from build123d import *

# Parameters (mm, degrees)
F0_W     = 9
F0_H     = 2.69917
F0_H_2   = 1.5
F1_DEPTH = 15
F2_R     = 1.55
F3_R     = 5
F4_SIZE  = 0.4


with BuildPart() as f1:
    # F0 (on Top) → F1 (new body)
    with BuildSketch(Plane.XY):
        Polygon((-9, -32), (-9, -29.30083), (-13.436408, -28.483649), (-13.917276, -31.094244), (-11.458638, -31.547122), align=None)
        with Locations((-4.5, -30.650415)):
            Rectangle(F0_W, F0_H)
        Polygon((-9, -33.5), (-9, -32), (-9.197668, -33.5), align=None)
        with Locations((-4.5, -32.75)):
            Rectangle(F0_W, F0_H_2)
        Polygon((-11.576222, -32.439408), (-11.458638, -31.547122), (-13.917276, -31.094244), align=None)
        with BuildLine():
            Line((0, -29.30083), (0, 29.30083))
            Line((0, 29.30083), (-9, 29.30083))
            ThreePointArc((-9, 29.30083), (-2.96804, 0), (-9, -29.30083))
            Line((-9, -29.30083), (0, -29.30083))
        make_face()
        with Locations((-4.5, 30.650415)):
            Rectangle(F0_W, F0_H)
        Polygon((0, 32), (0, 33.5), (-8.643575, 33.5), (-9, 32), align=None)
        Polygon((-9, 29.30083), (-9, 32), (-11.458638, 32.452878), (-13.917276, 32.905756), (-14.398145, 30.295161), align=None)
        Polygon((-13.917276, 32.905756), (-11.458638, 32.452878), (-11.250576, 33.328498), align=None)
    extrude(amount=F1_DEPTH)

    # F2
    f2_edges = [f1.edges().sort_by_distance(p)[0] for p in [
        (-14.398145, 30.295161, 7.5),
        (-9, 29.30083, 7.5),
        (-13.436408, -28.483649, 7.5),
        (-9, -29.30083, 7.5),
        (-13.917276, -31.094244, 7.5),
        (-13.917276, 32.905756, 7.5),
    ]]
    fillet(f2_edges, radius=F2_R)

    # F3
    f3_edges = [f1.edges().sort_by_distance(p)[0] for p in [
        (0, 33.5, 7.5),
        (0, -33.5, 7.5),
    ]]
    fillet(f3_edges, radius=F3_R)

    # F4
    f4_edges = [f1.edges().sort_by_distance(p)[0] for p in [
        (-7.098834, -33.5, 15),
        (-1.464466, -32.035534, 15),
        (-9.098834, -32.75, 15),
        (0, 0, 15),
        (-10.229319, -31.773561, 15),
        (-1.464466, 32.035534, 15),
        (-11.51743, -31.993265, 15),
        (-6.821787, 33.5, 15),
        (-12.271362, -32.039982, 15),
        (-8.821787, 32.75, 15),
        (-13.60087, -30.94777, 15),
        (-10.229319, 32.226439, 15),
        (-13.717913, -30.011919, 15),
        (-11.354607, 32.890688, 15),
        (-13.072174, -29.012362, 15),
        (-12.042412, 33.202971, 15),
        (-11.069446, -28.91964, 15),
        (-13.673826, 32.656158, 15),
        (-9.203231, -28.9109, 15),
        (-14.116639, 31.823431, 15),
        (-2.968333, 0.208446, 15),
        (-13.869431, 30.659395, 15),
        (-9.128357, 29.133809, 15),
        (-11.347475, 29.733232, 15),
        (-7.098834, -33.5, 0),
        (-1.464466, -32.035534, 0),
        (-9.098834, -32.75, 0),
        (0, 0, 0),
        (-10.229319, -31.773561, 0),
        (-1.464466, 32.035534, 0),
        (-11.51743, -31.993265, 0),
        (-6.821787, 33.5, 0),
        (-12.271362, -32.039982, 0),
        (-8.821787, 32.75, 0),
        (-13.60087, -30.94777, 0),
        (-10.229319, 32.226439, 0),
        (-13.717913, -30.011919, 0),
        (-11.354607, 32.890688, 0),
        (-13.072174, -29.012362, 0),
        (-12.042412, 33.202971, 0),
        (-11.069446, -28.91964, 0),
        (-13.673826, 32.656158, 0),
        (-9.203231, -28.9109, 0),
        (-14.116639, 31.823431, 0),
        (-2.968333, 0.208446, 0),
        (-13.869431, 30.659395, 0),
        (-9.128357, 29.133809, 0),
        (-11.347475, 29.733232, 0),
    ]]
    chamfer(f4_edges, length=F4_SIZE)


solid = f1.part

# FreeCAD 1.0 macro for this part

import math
import FreeCAD as App
import Part
import Sketcher
from FreeCAD import Vector
Q = App.Units.Quantity


def edges_at(feature, points):
    """Names of the edges that pass closest to the given points."""
    edges = feature.Shape.Edges
    near = lambda p: min(range(len(edges)), key=lambda i: edges[i].distToShape(Part.Vertex(*p))[0])
    return sorted({f"Edge{near(p) + 1}" for p in points})

doc = App.newDocument("Part")
body = doc.addObject("PartDesign::Body", "Body")

sketch1 = body.newObject("Sketcher::SketchObject", "Sketch")
sketch1.AttachmentSupport = (doc.getObject("XY_Plane"), [""])
sketch1.MapMode = "FlatFace"
sketch1.addGeometry([
    Part.LineSegment(Vector(-9, -29.3, 0), Vector(-13.4, -28.5, 0)),
    Part.LineSegment(Vector(-13.4, -28.5, 0), Vector(-13.9, -31.1, 0)),
    Part.LineSegment(Vector(-13.9, -31.1, 0), Vector(-11.6, -32.4, 0)),
    Part.LineSegment(Vector(-11.6, -32.4, 0), Vector(-11.5, -31.5, 0)),
    Part.LineSegment(Vector(-11.5, -31.5, 0), Vector(-9, -32, 0)),
    Part.LineSegment(Vector(-9, -32, 0), Vector(-9.2, -33.5, 0)),
    Part.LineSegment(Vector(-9.2, -33.5, 0), Vector(0, -33.5, 0)),
    Part.LineSegment(Vector(0, -33.5, 0), Vector(0, 33.5, 0)),
    Part.LineSegment(Vector(0, 33.5, 0), Vector(-8.6, 33.5, 0)),
    Part.LineSegment(Vector(-8.6, 33.5, 0), Vector(-9, 32, 0)),
    Part.LineSegment(Vector(-9, 32, 0), Vector(-11.5, 32.5, 0)),
    Part.LineSegment(Vector(-11.5, 32.5, 0), Vector(-11.3, 33.3, 0)),
    Part.LineSegment(Vector(-11.3, 33.3, 0), Vector(-13.9, 32.9, 0)),
    Part.LineSegment(Vector(-13.9, 32.9, 0), Vector(-14.4, 30.3, 0)),
    Part.LineSegment(Vector(-14.4, 30.3, 0), Vector(-9, 29.3, 0)),
    Part.ArcOfCircle(Part.Circle(Vector(-77.1, 0, 0), Vector(0, 0, 1), 74.2), math.radians(-23), math.radians(23)),
], False)
sketch1.addConstraint([
    Sketcher.Constraint("Coincident", 0, 2, 1, 1),
    Sketcher.Constraint("Coincident", 1, 2, 2, 1),
    Sketcher.Constraint("Coincident", 2, 2, 3, 1),
    Sketcher.Constraint("Coincident", 3, 2, 4, 1),
    Sketcher.Constraint("Coincident", 4, 2, 5, 1),
    Sketcher.Constraint("Coincident", 5, 2, 6, 1),
    Sketcher.Constraint("Coincident", 6, 2, 7, 1),
    Sketcher.Constraint("Coincident", 7, 2, 8, 1),
    Sketcher.Constraint("Coincident", 8, 2, 9, 1),
    Sketcher.Constraint("Coincident", 9, 2, 10, 1),
    Sketcher.Constraint("Coincident", 10, 2, 11, 1),
    Sketcher.Constraint("Coincident", 11, 2, 12, 1),
    Sketcher.Constraint("Coincident", 12, 2, 13, 1),
    Sketcher.Constraint("Coincident", 13, 2, 14, 1),
    Sketcher.Constraint("Coincident", 14, 2, 15, 2),
    Sketcher.Constraint("Coincident", 15, 1, 0, 1),
    Sketcher.Constraint("Horizontal", 6),
    Sketcher.Constraint("Vertical", 7),
    Sketcher.Constraint("Horizontal", 8),
    Sketcher.Constraint("Symmetric", 6, 2, 7, 2, -1, 1),
    Sketcher.Constraint("Symmetric", 4, 2, 9, 2, -1),
    Sketcher.Constraint("Symmetric", 14, 2, 15, 1, -1),
    Sketcher.Constraint("Perpendicular", 0, 1),
    Sketcher.Constraint("Perpendicular", 1, 4),
    Sketcher.Constraint("Parallel", 3, 5),
    Sketcher.Constraint("Parallel", 4, 10),
    Sketcher.Constraint("Parallel", 9, 11),
    Sketcher.Constraint("Perpendicular", 10, 13),
    Sketcher.Constraint("Perpendicular", 13, 14),
    Sketcher.Constraint("Vertical", 3, 2, 10, 2),
    Sketcher.Constraint("Vertical", 1, 2, 12, 2),
    Sketcher.Constraint("Vertical", 9, 2, 14, 2),
    Sketcher.Constraint("Equal", 3, 11),
    Sketcher.Constraint("Equal", 2, 12),
    Sketcher.Constraint("Equal", 1, 13),
    Sketcher.Constraint("DistanceY", 7, 1, 7, 2, Q("67 mm")),
    Sketcher.Constraint("DistanceX", 4, 2, -1, 1, Q("9 mm")),
    Sketcher.Constraint("DistanceY", 4, 2, -1, 1, Q("32 mm")),
    Sketcher.Constraint("Distance", 2, Q("2.7 mm")),
    Sketcher.Constraint("Distance", 3, Q("0.9 mm")),
    Sketcher.Constraint("Distance", 4, Q("2.5 mm")),
    Sketcher.Constraint("Radius", 15, Q("74.18179 mm")),
    Sketcher.Constraint("DistanceX", 11, 2, 8, 2, Q("2.607001 mm")),
    Sketcher.Constraint("DistanceY", -1, 1, 11, 2, Q("33.328498 mm")),
    Sketcher.Constraint("DistanceX", 1, 2, 8, 2, Q("5.273701 mm")),
    Sketcher.Constraint("Distance", 14, Q("5.488958 mm")),
])
pad1 = body.newObject("PartDesign::Pad", "Pad")
pad1.Profile = sketch1
pad1.Length = 15
doc.recompute()

fillet = body.newObject("PartDesign::Fillet", "Fillet")
fillet.Base = (pad1, edges_at(pad1, [
    (-14.398, 30.295, 7.5),
    (-9, 29.301, 7.5),
    (-13.436, -28.484, 7.5),
    (-9, -29.301, 7.5),
    (-13.917, -31.094, 7.5),
    (-13.917, 32.906, 7.5),
]))
fillet.Radius = 1.55
doc.recompute()

fillet2 = body.newObject("PartDesign::Fillet", "Fillet001")
fillet2.Base = (fillet, edges_at(fillet, [(0, 33.5, 7.5), (0, -33.5, 7.5)]))
fillet2.Radius = 5
doc.recompute()

chamfer = body.newObject("PartDesign::Chamfer", "Chamfer")
chamfer.Base = (fillet2, edges_at(fillet2, [
    (-7.099, -33.5, 15),
    (-1.464, -32.036, 15),
    (-9.099, -32.75, 15),
    (0, 0, 15),
    (-10.229, -31.774, 15),
    (-1.464, 32.036, 15),
    (-11.517, -31.993, 15),
    (-6.822, 33.5, 15),
    (-12.271, -32.04, 15),
    (-8.822, 32.75, 15),
    (-13.601, -30.948, 15),
    (-10.229, 32.226, 15),
    (-13.718, -30.012, 15),
    (-11.355, 32.891, 15),
    (-13.072, -29.012, 15),
    (-12.042, 33.203, 15),
    (-11.069, -28.92, 15),
    (-13.674, 32.656, 15),
    (-9.203, -28.911, 15),
    (-14.117, 31.823, 15),
    (-2.968, 0.208, 15),
    (-13.869, 30.659, 15),
    (-9.128, 29.134, 15),
    (-11.347, 29.733, 15),
    (-7.099, -33.5, 0),
    (-1.464, -32.036, 0),
    (-9.099, -32.75, 0),
    (0, 0, 0),
    (-10.229, -31.774, 0),
    (-1.464, 32.036, 0),
    (-11.517, -31.993, 0),
    (-6.822, 33.5, 0),
    (-12.271, -32.04, 0),
    (-8.822, 32.75, 0),
    (-13.601, -30.948, 0),
    (-10.229, 32.226, 0),
    (-13.718, -30.012, 0),
    (-11.355, 32.891, 0),
    (-13.072, -29.012, 0),
    (-12.042, 33.203, 0),
    (-11.069, -28.92, 0),
    (-13.674, 32.656, 0),
    (-9.203, -28.911, 0),
    (-14.117, 31.823, 0),
    (-2.968, 0.208, 0),
    (-13.869, 30.659, 0),
    (-9.128, 29.134, 0),
    (-11.347, 29.733, 0),
]))
chamfer.Size = 0.4

doc.recompute()
